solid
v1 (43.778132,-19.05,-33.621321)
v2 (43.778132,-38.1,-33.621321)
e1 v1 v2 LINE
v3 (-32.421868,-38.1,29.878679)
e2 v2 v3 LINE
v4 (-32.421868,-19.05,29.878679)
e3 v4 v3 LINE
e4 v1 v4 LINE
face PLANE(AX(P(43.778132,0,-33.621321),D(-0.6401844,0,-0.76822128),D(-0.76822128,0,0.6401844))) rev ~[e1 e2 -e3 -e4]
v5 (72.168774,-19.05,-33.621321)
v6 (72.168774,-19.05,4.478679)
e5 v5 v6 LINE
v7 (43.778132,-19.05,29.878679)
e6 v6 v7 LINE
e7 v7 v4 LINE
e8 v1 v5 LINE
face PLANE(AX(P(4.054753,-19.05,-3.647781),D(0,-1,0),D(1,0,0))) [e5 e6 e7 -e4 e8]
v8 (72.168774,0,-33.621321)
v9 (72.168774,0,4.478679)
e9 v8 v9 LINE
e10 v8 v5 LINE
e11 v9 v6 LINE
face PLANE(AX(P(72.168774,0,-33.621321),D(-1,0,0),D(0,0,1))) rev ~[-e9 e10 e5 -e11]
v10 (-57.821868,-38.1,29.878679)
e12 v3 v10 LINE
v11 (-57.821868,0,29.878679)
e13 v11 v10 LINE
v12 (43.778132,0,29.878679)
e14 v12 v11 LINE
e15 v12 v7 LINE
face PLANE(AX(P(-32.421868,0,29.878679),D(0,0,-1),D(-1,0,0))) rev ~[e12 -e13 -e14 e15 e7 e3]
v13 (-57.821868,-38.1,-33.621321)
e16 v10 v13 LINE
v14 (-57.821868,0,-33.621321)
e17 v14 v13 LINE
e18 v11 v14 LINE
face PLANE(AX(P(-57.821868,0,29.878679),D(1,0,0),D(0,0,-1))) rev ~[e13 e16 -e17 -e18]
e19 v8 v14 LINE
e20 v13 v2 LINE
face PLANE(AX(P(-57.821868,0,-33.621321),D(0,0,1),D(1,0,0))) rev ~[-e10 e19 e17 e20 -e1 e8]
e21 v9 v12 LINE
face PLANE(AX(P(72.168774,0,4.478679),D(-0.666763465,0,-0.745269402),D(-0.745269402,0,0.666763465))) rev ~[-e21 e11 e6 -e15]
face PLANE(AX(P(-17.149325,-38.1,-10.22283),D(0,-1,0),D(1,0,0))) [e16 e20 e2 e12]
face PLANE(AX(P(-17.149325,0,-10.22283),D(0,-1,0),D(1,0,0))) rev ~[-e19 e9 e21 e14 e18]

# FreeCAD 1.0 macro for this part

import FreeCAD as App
import Part
import Sketcher
Q = App.Units.Quantity


def add_polygon(sketch, points):
    """Adds a closed chain of lines whose ends are joined by coincident constraints."""
    first, n = sketch.GeometryCount, len(points)
    for a, b in zip(points, points[1:] + points[:1]):
        sketch.addGeometry(Part.LineSegment(App.Vector(*a, 0), App.Vector(*b, 0)), False)
    for i in range(n):
        sketch.addConstraint(Sketcher.Constraint("Coincident", first + i, 2, first + (i + 1) % n, 1))

doc = App.newDocument("Part")
body = doc.addObject("PartDesign::Body", "Body")

sketch1 = body.newObject("Sketcher::SketchObject", "Sketch")
sketch1.AttachmentSupport = (doc.getObject("XZ_Plane"), [""])
sketch1.MapMode = "FlatFace"
add_polygon(sketch1, [(-32.421868, 29.878679), (-57.821868, 29.878679), (-57.821868, -33.621321), (43.778132, -33.621321)])
sketch1.addConstraint([
    Sketcher.Constraint("Horizontal", 0),
    Sketcher.Constraint("Vertical", 1),
    Sketcher.Constraint("Horizontal", 2),
    Sketcher.Constraint("DistanceX", 0, 2, 0, 1, Q("1 in")),
    Sketcher.Constraint("DistanceX", 2, 1, 2, 2, Q("4 in")),
    Sketcher.Constraint("DistanceY", 1, 2, 1, 1, Q("2.5 in")),
    Sketcher.Constraint("DistanceX", 0, 2, -1, 1, Q("57.821868 mm")),
    Sketcher.Constraint("DistanceY", -1, 1, 0, 2, Q("29.878679 mm")),
])
pad1 = body.newObject("PartDesign::Pad", "Pad")
pad1.Profile = sketch1
pad1.Length = Q("1.5 in")

sketch2 = body.newObject("Sketcher::SketchObject", "Sketch001")
sketch2.AttachmentSupport = (doc.getObject("XZ_Plane"), [""])
sketch2.MapMode = "FlatFace"
add_polygon(sketch2, [(-57.821868, 29.878679), (-57.821868, -33.621321), (72.168774, -33.621321), (72.168774, 4.478679), (43.778132, 29.878679)])
sketch2.addConstraint([
    Sketcher.Constraint("Vertical", 0),
    Sketcher.Constraint("Horizontal", 1),
    Sketcher.Constraint("Vertical", 2),
    Sketcher.Constraint("Horizontal", 4),
    Sketcher.Constraint("DistanceX", 4, 2, 4, 1, Q("4 in")),
    Sketcher.Constraint("DistanceY", 0, 2, 0, 1, Q("2.5 in")),
    Sketcher.Constraint("DistanceY", 2, 1, 2, 2, Q("1.5 in")),
    Sketcher.Constraint("DistanceX", 1, 1, 1, 2, Q("129.990642 mm")),
    Sketcher.Constraint("DistanceX", 0, 2, -1, 1, Q("57.821868 mm")),
    Sketcher.Constraint("DistanceY", 0, 2, -1, 1, Q("33.621321 mm")),
])
pad2 = body.newObject("PartDesign::Pad", "Pad001")
pad2.Profile = sketch2
pad2.Length = Q("0.75 in")

doc.recompute()
